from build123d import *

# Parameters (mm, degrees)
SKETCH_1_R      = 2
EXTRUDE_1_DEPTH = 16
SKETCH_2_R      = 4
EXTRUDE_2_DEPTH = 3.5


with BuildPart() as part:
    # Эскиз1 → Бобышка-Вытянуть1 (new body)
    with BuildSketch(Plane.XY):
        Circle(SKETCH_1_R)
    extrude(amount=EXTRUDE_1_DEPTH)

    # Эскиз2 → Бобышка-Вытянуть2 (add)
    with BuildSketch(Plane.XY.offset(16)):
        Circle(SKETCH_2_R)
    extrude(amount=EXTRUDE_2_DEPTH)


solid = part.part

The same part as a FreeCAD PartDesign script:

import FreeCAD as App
import Part
import Sketcher
Q = App.Units.Quantity

doc = App.newDocument("Part")
params = doc.addObject("Spreadsheet::Sheet", "Params")
for row, (alias, value) in enumerate([
    ("sketch1_diameter", "4 mm"),
    ("pad1_length", "16 mm"),
    ("sketch2_diameter", "8 mm"),
    ("pad2_length", "3.5 mm"),
], start=1):
    params.set(f"A{row}", alias)
    params.set(f"B{row}", "=" + value)
    params.setAlias(f"B{row}", alias)

body = doc.addObject("PartDesign::Body", "Body")

# Sketch on XY plane
sketch1 = body.newObject("Sketcher::SketchObject", "Sketch")
sketch1.AttachmentSupport = (doc.getObject("XY_Plane"), [""])
sketch1.MapMode = "FlatFace"
sketch1.addGeometry(Part.Circle(App.Vector(0, 0, 0), App.Vector(0, 0, 1), 2), False)
sketch1.addConstraint([
    Sketcher.Constraint("Coincident", 0, 3, -1, 1),
    Sketcher.Constraint("Diameter", 0, Q("4 mm")),
])
sketch1.setExpression("Constraints[1]", "Params.sketch1_diameter")
pad1 = body.newObject("PartDesign::Pad", "Pad")
pad1.Profile = sketch1
pad1.setExpression("Length", "Params.pad1_length")

# Sketch on XY plane
sketch2 = body.newObject("Sketcher::SketchObject", "Sketch001")
sketch2.AttachmentSupport = (doc.getObject("XY_Plane"), [""])
sketch2.MapMode = "FlatFace"
sketch2.AttachmentOffset = App.Placement(App.Vector(0, 0, 16), App.Rotation())
sketch2.addGeometry(Part.Circle(App.Vector(0, 0, 0), App.Vector(0, 0, 1), 4), False)
sketch2.addConstraint([
    Sketcher.Constraint("Coincident", 0, 3, -1, 1),
    Sketcher.Constraint("Diameter", 0, Q("8 mm")),
])
sketch2.setExpression("Constraints[1]", "Params.sketch2_diameter")
pad2 = body.newObject("PartDesign::Pad", "Pad001")
pad2.Profile = sketch2
pad2.setExpression("Length", "Params.pad2_length")

doc.recompute()
